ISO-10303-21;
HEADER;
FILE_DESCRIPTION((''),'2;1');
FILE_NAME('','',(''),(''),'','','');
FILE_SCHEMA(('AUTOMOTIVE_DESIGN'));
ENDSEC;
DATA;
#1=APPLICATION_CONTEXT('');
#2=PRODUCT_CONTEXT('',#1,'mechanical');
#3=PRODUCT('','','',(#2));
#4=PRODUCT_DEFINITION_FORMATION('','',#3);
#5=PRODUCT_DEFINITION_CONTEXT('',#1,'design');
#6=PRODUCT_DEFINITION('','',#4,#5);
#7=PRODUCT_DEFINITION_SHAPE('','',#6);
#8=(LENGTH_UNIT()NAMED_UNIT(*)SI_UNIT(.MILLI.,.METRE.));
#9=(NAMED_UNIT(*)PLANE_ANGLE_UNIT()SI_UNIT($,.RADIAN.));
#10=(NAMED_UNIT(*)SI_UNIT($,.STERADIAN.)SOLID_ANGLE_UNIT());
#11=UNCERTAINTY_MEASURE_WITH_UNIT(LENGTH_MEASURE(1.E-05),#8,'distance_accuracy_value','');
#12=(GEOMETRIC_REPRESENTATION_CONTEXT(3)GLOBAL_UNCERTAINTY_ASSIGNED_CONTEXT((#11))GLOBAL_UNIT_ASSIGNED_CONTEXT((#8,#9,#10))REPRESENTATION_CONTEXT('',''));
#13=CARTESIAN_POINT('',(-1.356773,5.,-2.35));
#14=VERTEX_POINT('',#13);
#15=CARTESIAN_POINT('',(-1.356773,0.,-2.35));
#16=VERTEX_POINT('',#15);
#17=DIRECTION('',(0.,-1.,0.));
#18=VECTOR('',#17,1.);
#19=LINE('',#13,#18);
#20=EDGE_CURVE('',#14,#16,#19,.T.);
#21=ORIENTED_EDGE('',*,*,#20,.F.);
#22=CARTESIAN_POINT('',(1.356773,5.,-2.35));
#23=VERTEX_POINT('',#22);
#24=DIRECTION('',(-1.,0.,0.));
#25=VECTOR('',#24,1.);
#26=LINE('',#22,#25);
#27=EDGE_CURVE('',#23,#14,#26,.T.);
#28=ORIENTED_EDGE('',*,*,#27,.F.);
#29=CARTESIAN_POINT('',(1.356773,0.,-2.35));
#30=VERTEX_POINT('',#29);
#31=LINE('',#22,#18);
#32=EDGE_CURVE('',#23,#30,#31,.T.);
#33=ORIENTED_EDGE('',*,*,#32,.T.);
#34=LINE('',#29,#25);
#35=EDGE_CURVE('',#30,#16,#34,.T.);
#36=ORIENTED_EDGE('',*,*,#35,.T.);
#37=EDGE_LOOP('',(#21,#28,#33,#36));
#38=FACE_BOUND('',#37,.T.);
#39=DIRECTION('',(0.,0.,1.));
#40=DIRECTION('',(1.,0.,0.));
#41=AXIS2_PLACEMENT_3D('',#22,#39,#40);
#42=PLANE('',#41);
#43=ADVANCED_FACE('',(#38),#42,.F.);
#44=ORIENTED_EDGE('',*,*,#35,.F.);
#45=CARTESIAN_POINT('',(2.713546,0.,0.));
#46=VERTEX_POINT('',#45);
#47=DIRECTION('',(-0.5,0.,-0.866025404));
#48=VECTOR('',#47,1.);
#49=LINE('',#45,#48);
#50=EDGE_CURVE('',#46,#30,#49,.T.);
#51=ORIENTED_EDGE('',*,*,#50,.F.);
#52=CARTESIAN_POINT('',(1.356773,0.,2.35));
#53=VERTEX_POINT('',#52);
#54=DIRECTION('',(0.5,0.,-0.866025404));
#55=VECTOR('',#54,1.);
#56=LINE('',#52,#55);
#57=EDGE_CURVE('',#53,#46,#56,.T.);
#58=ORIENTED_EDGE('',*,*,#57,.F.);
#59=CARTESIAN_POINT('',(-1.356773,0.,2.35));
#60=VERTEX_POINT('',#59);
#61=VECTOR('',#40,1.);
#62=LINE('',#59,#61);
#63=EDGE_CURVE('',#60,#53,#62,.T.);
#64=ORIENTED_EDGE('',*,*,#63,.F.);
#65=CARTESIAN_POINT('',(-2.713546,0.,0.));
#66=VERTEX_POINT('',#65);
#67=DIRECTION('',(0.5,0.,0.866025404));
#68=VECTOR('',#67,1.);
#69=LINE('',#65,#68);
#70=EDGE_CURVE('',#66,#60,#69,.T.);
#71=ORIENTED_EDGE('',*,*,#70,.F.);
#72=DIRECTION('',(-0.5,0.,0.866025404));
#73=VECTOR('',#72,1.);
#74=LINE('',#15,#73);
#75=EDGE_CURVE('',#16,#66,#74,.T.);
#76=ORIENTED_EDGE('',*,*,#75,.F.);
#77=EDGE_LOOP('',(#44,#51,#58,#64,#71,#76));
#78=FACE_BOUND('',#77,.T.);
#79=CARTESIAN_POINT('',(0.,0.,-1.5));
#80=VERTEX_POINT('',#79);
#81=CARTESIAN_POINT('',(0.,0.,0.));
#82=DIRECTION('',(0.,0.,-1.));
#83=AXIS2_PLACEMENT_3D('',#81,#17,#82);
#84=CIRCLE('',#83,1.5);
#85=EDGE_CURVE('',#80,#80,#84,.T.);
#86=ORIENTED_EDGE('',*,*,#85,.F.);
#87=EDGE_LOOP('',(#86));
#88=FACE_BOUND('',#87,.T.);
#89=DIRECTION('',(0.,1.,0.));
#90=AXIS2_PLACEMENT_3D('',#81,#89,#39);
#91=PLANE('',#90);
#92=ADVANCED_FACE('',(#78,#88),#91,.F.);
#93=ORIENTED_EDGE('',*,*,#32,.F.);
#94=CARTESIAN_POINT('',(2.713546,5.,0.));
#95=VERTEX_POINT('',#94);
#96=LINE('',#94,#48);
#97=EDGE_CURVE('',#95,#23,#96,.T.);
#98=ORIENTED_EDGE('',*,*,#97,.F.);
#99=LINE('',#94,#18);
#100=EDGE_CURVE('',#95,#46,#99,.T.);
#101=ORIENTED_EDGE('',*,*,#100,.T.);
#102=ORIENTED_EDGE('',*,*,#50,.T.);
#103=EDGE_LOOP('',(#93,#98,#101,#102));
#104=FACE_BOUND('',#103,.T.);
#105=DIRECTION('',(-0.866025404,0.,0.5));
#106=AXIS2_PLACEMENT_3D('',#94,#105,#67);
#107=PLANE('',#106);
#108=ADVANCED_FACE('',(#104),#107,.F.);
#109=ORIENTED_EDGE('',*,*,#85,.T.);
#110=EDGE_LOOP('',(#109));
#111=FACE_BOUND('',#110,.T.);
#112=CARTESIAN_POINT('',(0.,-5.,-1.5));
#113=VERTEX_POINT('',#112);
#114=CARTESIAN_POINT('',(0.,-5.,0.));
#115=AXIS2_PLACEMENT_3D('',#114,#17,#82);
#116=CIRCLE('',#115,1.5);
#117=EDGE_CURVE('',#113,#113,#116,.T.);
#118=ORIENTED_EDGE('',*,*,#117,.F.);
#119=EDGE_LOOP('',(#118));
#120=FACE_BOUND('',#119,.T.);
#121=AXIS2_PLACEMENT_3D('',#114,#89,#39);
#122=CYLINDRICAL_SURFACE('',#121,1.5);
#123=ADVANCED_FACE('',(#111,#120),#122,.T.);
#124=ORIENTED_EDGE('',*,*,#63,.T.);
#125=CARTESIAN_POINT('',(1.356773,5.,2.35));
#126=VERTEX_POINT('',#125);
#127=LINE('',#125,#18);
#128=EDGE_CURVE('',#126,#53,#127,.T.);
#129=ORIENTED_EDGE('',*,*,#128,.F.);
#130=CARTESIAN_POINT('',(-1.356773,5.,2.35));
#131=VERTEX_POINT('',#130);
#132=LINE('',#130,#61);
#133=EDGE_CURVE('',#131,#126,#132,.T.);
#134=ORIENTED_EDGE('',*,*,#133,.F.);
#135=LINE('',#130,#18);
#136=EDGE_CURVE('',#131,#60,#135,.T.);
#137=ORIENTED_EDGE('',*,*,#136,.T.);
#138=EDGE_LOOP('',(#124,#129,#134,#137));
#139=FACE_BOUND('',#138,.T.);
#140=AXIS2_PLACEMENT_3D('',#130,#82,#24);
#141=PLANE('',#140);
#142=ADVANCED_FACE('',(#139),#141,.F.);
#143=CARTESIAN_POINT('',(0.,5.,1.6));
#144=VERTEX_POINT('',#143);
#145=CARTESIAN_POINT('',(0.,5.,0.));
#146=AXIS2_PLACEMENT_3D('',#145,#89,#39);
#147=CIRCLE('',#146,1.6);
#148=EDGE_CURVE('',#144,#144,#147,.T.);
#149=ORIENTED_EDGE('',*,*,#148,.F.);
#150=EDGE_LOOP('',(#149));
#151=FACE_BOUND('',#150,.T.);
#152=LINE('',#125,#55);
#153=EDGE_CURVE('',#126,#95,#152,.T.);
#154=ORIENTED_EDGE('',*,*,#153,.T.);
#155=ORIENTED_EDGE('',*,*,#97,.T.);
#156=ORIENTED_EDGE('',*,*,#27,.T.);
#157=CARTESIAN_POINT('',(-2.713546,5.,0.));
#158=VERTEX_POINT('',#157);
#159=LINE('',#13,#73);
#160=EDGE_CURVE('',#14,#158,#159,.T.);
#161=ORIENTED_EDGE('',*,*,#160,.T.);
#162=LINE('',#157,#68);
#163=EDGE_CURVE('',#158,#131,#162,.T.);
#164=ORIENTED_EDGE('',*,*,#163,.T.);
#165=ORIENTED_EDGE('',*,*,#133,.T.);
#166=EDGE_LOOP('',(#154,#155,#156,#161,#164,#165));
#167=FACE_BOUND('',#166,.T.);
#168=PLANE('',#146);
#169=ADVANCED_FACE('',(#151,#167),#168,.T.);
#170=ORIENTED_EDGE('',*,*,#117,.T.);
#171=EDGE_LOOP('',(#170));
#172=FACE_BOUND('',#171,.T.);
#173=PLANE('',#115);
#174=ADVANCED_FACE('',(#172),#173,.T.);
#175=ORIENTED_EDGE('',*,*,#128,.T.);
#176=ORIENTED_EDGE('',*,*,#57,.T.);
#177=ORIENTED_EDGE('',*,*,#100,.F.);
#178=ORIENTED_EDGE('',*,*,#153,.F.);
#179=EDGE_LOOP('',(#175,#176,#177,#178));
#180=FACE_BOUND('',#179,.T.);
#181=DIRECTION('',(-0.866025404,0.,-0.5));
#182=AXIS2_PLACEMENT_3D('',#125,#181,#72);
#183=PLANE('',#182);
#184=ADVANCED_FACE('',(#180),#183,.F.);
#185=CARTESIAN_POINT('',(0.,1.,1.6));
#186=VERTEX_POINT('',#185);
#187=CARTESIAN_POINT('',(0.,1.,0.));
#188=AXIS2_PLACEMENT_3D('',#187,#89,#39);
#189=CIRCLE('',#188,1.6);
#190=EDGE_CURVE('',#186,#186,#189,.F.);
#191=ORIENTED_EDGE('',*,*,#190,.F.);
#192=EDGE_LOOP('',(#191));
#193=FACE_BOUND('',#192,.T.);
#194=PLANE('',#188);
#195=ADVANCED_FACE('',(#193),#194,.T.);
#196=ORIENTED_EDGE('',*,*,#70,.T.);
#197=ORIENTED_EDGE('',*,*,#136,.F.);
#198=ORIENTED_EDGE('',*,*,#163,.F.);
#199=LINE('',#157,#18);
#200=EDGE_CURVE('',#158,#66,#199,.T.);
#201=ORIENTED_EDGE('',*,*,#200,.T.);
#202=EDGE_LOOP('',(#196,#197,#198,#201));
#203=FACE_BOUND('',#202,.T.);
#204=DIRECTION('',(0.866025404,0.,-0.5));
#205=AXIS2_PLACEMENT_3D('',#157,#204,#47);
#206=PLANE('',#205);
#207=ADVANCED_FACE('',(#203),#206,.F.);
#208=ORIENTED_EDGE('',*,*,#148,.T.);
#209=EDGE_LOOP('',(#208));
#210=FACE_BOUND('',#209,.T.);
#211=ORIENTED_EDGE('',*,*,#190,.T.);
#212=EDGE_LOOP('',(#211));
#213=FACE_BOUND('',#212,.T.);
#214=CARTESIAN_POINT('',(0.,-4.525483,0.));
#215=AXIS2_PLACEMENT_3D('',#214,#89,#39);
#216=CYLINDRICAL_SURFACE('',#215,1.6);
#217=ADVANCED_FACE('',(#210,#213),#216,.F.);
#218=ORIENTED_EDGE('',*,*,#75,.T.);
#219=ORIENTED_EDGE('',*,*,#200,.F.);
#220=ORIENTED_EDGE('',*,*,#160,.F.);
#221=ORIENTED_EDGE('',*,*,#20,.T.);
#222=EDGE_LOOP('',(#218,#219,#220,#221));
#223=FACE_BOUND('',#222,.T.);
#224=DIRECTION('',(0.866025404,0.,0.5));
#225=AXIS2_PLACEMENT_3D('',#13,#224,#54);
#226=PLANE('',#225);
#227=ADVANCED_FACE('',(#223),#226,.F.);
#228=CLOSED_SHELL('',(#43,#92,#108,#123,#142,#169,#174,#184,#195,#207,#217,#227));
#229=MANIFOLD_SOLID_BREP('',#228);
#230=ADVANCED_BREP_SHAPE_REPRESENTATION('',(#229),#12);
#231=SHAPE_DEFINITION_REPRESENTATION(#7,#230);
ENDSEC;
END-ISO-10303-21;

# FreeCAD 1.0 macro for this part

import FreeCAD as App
import Part
import Sketcher
from FreeCAD import Vector
Q = App.Units.Quantity


def add_polygon(sketch, points):
    """Adds a closed chain of lines whose ends are joined by coincident constraints."""
    first, n = sketch.GeometryCount, len(points)
    for a, b in zip(points, points[1:] + points[:1]):
        sketch.addGeometry(Part.LineSegment(App.Vector(*a, 0), App.Vector(*b, 0)), False)
    for i in range(n):
        sketch.addConstraint(Sketcher.Constraint("Coincident", first + i, 2, first + (i + 1) % n, 1))

doc = App.newDocument("Part")
body = doc.addObject("PartDesign::Body", "Body")

sketch1 = body.newObject("Sketcher::SketchObject", "Sketch")
sketch1.AttachmentSupport = (doc.getObject("XZ_Plane"), [""])
sketch1.MapMode = "FlatFace"
add_polygon(sketch1, [(2.713546, 0), (1.356773, -2.35), (-1.356773, -2.35), (-2.713546, 0), (-1.356773, 2.35), (1.356773, 2.35)])
sketch1.addConstraint(Sketcher.Constraint("Horizontal", 1))
sketch1.addConstraint(Sketcher.Constraint("Horizontal", 4))
sketch1.addConstraint(Sketcher.Constraint("Symmetric", 0, 2, 3, 2, -1, 1))
sketch1.addConstraint(Sketcher.Constraint("Symmetric", 2, 2, 5, 2, -1, 1))
sketch1.addConstraint(Sketcher.Constraint("PointOnObject", 2, 2, -1))
sketch1.addConstraint(Sketcher.Constraint("Parallel", 2, 5))
sketch1.addConstraint(Sketcher.Constraint("Vertical", 1, 2, 3, 2))
sketch1.addConstraint(Sketcher.Constraint("Angle", 0, Q("-120 deg")))
sketch1.addConstraint(Sketcher.Constraint("DistanceY", 1, 2, 3, 2, 4.7))
sketch1.addConstraint(Sketcher.Constraint("DistanceX", 1, 2, 1, 1, 2.713546))
pad1 = body.newObject("PartDesign::Pad", "Pad")
pad1.Profile = sketch1
pad1.Length = 5
pad1.Reversed = True

sketch2 = body.newObject("Sketcher::SketchObject", "Sketch001")
sketch2.AttachmentSupport = (doc.getObject("XZ_Plane"), [""])
sketch2.MapMode = "FlatFace"
sketch2.AttachmentOffset = App.Placement(Vector(0, 0, -5), App.Rotation())
sketch2.addGeometry(Part.Circle(Vector(0, 0, 0), Vector(0, 0, 1), 1.6), False)
sketch2.addConstraint(Sketcher.Constraint("Coincident", 0, 3, -1, 1))
sketch2.addConstraint(Sketcher.Constraint("Diameter", 0, 3.2))
pocket1 = body.newObject("PartDesign::Pocket", "Pocket")
pocket1.Profile = sketch2
pocket1.Length = 4
pocket1.Reversed = True

sketch3 = body.newObject("Sketcher::SketchObject", "Sketch002")
sketch3.AttachmentSupport = (doc.getObject("XZ_Plane"), [""])
sketch3.MapMode = "FlatFace"
sketch3.addGeometry(Part.Circle(Vector(0, 0, 0), Vector(0, 0, 1), 1.5), False)
sketch3.addConstraint(Sketcher.Constraint("Coincident", 0, 3, -1, 1))
sketch3.addConstraint(Sketcher.Constraint("Diameter", 0, 3.0))
pad2 = body.newObject("PartDesign::Pad", "Pad001")
pad2.Profile = sketch3
pad2.Length = 5

doc.recompute()
